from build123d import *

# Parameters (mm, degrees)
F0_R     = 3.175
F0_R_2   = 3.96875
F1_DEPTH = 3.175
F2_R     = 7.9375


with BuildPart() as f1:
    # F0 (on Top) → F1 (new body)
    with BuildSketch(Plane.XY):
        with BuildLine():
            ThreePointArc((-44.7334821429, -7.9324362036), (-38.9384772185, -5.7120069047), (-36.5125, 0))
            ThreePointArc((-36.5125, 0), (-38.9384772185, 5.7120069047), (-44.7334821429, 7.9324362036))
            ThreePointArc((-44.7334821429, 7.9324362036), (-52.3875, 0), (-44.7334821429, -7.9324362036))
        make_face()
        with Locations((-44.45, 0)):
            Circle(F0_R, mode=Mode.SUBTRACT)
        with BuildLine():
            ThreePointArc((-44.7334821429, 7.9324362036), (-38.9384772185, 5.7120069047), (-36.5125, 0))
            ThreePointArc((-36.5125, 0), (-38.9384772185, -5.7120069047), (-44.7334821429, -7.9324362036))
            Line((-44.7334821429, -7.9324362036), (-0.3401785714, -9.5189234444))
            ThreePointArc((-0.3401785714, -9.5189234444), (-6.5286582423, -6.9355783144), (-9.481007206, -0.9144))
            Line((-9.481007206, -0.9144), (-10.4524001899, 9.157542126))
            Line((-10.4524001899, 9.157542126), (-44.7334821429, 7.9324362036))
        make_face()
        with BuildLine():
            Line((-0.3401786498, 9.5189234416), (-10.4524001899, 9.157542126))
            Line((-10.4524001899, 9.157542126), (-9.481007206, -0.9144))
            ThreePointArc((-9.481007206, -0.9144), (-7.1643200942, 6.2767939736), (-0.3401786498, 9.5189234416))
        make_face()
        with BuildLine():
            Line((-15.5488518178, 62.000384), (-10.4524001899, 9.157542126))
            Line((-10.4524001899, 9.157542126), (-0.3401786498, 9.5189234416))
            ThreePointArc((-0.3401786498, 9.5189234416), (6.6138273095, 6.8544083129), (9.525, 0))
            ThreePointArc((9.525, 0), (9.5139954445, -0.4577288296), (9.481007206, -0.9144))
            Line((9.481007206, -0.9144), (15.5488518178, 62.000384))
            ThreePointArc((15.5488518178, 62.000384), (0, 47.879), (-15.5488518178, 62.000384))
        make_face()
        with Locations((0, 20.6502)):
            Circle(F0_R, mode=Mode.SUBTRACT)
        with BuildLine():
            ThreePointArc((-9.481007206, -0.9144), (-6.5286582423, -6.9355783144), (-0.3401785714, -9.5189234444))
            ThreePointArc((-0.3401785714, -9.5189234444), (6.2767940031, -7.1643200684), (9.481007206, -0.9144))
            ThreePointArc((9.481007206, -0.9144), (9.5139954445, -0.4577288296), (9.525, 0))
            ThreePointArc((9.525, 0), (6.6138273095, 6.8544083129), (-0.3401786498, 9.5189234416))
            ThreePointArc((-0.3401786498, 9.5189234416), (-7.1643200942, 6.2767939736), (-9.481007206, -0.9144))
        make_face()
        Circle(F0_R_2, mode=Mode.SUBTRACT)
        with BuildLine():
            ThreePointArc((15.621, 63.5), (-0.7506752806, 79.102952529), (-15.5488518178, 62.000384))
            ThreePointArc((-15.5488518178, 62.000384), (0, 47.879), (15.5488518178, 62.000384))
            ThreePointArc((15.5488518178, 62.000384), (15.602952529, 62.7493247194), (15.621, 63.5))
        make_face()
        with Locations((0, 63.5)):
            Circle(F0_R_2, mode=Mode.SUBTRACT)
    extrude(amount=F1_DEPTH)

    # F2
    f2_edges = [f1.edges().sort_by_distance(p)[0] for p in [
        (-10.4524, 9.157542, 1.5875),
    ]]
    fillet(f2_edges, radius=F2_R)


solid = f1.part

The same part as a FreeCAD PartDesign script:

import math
import FreeCAD as App
import Part
import Sketcher
from FreeCAD import Vector
Q = App.Units.Quantity


def edges_at(feature, points):
    """Names of the edges that pass closest to the given points."""
    edges = feature.Shape.Edges
    near = lambda p: min(range(len(edges)), key=lambda i: edges[i].distToShape(Part.Vertex(*p))[0])
    return sorted({f"Edge{near(p) + 1}" for p in points})

doc = App.newDocument("Part")
params = doc.addObject("Spreadsheet::Sheet", "Params")
for row, (alias, value) in enumerate([
    ("sketch1_diameter", "0.25 in"),
    ("sketch1_diameter2", "0.3125 in"),
    ("sketch1_radius", "0.3125 in"),
    ("sketch1_radius2", "0.375 in"),
    ("sketch1_radius3", "0.615 in"),
    ("pad1_length", "0.125 in"),
    ("fillet_radius", "0.3125 in"),
], start=1):
    params.set(f"A{row}", alias)
    params.set(f"B{row}", "=" + value)
    params.setAlias(f"B{row}", alias)

body = doc.addObject("PartDesign::Body", "Body")

sketch1 = doc.addObject("Sketcher::SketchObject", "Sketch")
body.addObject(sketch1)
sketch1.AttachmentSupport = (doc.XY_Plane, [""])
sketch1.MapMode = "FlatFace"
sketch1.addGeometry(Part.ArcOfCircle(Part.Circle(Vector(-44.5, 0, 0), Vector(0, 0, 1), 7.9), math.radians(92), math.radians(268)), False)
sketch1.addGeometry(Part.LineSegment(Vector(-44.7, -7.9, 0), Vector(-0.3, -9.5, 0)), False)
sketch1.addGeometry(Part.ArcOfCircle(Part.Circle(Vector(0, 0, 0), Vector(0, 0, 1), 9.5), math.radians(-92), math.radians(-6)), False)
sketch1.addGeometry(Part.LineSegment(Vector(9.5, -0.9, 0), Vector(15.5, 62, 0)), False)
sketch1.addGeometry(Part.ArcOfCircle(Part.Circle(Vector(0, 63.5, 0), Vector(0, 0, 1), 15.6), math.radians(-5.51), math.radians(0)), False)
sketch1.addGeometry(Part.ArcOfCircle(Part.Circle(Vector(0, 63.5, 0), Vector(0, 0, 1), 15.6), math.radians(0), math.radians(186)), False)
sketch1.addGeometry(Part.LineSegment(Vector(-15.5, 62, 0), Vector(-10.5, 9.2, 0)), False)
sketch1.addGeometry(Part.LineSegment(Vector(-10.5, 9.2, 0), Vector(-44.7, 7.9, 0)), False)
sketch1.addGeometry(Part.Circle(Vector(-44.5, 0, 0), Vector(0, 0, 1), 3.2), False)
sketch1.addGeometry(Part.Circle(Vector(0, 0, 0), Vector(0, 0, 1), 4), False)
sketch1.addGeometry(Part.Circle(Vector(0, 20.7, 0), Vector(0, 0, 1), 3.2), False)
sketch1.addGeometry(Part.Circle(Vector(0, 63.5, 0), Vector(0, 0, 1), 4), False)
sketch1.addConstraint(Sketcher.Constraint("Tangent", 0, 2, 1, 1))
sketch1.addConstraint(Sketcher.Constraint("Tangent", 1, 2, 2, 1))
sketch1.addConstraint(Sketcher.Constraint("Tangent", 2, 2, 3, 1))
sketch1.addConstraint(Sketcher.Constraint("Tangent", 3, 2, 4, 1))
sketch1.addConstraint(Sketcher.Constraint("Tangent", 4, 2, 5, 1))
sketch1.addConstraint(Sketcher.Constraint("Tangent", 5, 2, 6, 1))
sketch1.addConstraint(Sketcher.Constraint("Coincident", 6, 2, 7, 1))
sketch1.addConstraint(Sketcher.Constraint("Tangent", 7, 2, 0, 1))
sketch1.addConstraint(Sketcher.Constraint("Coincident", 2, 3, -1, 1))
sketch1.addConstraint(Sketcher.Constraint("Coincident", 9, 3, -1, 1))
sketch1.addConstraint(Sketcher.Constraint("Coincident", 8, 3, 0, 3))
sketch1.addConstraint(Sketcher.Constraint("Coincident", 11, 3, 4, 3))
sketch1.addConstraint(Sketcher.Constraint("Equal", 4, 5))
sketch1.addConstraint(Sketcher.Constraint("Equal", 8, 10))
sketch1.addConstraint(Sketcher.Constraint("Equal", 9, 11))
sketch1.addConstraint(Sketcher.Constraint("Symmetric", 3, 2, 5, 2, -2))
sketch1.addConstraint(Sketcher.Constraint("Symmetric", 0, 2, 7, 2, -1))
sketch1.addConstraint(Sketcher.Constraint("PointOnObject", 10, 3, -2))
sketch1.addConstraint(Sketcher.Constraint("Horizontal", 11, 3, 4, 2))
sketch1.addConstraint(Sketcher.Constraint("Diameter", 8, Q("0.25 in")))
sketch1.addConstraint(Sketcher.Constraint("Diameter", 9, Q("0.3125 in")))
sketch1.addConstraint(Sketcher.Constraint("Radius", 0, Q("0.3125 in")))
sketch1.addConstraint(Sketcher.Constraint("Radius", 2, Q("0.375 in")))
sketch1.addConstraint(Sketcher.Constraint("Radius", 4, Q("0.615 in")))
sketch1.addConstraint(Sketcher.Constraint("DistanceY", -1, 1, 4, 3, Q("2.5 in")))
sketch1.addConstraint(Sketcher.Constraint("DistanceX", 0, 3, -1, 1, Q("1.75 in")))
sketch1.addConstraint(Sketcher.Constraint("DistanceY", -1, 1, 10, 3, Q("0.813 in")))
sketch1.setExpression("Constraints[19]", "Params.sketch1_diameter")
sketch1.setExpression("Constraints[20]", "Params.sketch1_diameter2")
sketch1.setExpression("Constraints[21]", "Params.sketch1_radius")
sketch1.setExpression("Constraints[22]", "Params.sketch1_radius2")
sketch1.setExpression("Constraints[23]", "Params.sketch1_radius3")
pad1 = doc.addObject("PartDesign::Pad", "Pad")
body.addObject(pad1)
pad1.Profile = sketch1
pad1.setExpression("Length", "Params.pad1_length")
doc.recompute()

fillet = doc.addObject("PartDesign::Fillet", "Fillet")
body.addObject(fillet)
fillet.Base = (pad1, edges_at(pad1, [(-10.452, 9.158, 1.587)]))
fillet.setExpression("Radius", "Params.fillet_radius")

doc.recompute()
